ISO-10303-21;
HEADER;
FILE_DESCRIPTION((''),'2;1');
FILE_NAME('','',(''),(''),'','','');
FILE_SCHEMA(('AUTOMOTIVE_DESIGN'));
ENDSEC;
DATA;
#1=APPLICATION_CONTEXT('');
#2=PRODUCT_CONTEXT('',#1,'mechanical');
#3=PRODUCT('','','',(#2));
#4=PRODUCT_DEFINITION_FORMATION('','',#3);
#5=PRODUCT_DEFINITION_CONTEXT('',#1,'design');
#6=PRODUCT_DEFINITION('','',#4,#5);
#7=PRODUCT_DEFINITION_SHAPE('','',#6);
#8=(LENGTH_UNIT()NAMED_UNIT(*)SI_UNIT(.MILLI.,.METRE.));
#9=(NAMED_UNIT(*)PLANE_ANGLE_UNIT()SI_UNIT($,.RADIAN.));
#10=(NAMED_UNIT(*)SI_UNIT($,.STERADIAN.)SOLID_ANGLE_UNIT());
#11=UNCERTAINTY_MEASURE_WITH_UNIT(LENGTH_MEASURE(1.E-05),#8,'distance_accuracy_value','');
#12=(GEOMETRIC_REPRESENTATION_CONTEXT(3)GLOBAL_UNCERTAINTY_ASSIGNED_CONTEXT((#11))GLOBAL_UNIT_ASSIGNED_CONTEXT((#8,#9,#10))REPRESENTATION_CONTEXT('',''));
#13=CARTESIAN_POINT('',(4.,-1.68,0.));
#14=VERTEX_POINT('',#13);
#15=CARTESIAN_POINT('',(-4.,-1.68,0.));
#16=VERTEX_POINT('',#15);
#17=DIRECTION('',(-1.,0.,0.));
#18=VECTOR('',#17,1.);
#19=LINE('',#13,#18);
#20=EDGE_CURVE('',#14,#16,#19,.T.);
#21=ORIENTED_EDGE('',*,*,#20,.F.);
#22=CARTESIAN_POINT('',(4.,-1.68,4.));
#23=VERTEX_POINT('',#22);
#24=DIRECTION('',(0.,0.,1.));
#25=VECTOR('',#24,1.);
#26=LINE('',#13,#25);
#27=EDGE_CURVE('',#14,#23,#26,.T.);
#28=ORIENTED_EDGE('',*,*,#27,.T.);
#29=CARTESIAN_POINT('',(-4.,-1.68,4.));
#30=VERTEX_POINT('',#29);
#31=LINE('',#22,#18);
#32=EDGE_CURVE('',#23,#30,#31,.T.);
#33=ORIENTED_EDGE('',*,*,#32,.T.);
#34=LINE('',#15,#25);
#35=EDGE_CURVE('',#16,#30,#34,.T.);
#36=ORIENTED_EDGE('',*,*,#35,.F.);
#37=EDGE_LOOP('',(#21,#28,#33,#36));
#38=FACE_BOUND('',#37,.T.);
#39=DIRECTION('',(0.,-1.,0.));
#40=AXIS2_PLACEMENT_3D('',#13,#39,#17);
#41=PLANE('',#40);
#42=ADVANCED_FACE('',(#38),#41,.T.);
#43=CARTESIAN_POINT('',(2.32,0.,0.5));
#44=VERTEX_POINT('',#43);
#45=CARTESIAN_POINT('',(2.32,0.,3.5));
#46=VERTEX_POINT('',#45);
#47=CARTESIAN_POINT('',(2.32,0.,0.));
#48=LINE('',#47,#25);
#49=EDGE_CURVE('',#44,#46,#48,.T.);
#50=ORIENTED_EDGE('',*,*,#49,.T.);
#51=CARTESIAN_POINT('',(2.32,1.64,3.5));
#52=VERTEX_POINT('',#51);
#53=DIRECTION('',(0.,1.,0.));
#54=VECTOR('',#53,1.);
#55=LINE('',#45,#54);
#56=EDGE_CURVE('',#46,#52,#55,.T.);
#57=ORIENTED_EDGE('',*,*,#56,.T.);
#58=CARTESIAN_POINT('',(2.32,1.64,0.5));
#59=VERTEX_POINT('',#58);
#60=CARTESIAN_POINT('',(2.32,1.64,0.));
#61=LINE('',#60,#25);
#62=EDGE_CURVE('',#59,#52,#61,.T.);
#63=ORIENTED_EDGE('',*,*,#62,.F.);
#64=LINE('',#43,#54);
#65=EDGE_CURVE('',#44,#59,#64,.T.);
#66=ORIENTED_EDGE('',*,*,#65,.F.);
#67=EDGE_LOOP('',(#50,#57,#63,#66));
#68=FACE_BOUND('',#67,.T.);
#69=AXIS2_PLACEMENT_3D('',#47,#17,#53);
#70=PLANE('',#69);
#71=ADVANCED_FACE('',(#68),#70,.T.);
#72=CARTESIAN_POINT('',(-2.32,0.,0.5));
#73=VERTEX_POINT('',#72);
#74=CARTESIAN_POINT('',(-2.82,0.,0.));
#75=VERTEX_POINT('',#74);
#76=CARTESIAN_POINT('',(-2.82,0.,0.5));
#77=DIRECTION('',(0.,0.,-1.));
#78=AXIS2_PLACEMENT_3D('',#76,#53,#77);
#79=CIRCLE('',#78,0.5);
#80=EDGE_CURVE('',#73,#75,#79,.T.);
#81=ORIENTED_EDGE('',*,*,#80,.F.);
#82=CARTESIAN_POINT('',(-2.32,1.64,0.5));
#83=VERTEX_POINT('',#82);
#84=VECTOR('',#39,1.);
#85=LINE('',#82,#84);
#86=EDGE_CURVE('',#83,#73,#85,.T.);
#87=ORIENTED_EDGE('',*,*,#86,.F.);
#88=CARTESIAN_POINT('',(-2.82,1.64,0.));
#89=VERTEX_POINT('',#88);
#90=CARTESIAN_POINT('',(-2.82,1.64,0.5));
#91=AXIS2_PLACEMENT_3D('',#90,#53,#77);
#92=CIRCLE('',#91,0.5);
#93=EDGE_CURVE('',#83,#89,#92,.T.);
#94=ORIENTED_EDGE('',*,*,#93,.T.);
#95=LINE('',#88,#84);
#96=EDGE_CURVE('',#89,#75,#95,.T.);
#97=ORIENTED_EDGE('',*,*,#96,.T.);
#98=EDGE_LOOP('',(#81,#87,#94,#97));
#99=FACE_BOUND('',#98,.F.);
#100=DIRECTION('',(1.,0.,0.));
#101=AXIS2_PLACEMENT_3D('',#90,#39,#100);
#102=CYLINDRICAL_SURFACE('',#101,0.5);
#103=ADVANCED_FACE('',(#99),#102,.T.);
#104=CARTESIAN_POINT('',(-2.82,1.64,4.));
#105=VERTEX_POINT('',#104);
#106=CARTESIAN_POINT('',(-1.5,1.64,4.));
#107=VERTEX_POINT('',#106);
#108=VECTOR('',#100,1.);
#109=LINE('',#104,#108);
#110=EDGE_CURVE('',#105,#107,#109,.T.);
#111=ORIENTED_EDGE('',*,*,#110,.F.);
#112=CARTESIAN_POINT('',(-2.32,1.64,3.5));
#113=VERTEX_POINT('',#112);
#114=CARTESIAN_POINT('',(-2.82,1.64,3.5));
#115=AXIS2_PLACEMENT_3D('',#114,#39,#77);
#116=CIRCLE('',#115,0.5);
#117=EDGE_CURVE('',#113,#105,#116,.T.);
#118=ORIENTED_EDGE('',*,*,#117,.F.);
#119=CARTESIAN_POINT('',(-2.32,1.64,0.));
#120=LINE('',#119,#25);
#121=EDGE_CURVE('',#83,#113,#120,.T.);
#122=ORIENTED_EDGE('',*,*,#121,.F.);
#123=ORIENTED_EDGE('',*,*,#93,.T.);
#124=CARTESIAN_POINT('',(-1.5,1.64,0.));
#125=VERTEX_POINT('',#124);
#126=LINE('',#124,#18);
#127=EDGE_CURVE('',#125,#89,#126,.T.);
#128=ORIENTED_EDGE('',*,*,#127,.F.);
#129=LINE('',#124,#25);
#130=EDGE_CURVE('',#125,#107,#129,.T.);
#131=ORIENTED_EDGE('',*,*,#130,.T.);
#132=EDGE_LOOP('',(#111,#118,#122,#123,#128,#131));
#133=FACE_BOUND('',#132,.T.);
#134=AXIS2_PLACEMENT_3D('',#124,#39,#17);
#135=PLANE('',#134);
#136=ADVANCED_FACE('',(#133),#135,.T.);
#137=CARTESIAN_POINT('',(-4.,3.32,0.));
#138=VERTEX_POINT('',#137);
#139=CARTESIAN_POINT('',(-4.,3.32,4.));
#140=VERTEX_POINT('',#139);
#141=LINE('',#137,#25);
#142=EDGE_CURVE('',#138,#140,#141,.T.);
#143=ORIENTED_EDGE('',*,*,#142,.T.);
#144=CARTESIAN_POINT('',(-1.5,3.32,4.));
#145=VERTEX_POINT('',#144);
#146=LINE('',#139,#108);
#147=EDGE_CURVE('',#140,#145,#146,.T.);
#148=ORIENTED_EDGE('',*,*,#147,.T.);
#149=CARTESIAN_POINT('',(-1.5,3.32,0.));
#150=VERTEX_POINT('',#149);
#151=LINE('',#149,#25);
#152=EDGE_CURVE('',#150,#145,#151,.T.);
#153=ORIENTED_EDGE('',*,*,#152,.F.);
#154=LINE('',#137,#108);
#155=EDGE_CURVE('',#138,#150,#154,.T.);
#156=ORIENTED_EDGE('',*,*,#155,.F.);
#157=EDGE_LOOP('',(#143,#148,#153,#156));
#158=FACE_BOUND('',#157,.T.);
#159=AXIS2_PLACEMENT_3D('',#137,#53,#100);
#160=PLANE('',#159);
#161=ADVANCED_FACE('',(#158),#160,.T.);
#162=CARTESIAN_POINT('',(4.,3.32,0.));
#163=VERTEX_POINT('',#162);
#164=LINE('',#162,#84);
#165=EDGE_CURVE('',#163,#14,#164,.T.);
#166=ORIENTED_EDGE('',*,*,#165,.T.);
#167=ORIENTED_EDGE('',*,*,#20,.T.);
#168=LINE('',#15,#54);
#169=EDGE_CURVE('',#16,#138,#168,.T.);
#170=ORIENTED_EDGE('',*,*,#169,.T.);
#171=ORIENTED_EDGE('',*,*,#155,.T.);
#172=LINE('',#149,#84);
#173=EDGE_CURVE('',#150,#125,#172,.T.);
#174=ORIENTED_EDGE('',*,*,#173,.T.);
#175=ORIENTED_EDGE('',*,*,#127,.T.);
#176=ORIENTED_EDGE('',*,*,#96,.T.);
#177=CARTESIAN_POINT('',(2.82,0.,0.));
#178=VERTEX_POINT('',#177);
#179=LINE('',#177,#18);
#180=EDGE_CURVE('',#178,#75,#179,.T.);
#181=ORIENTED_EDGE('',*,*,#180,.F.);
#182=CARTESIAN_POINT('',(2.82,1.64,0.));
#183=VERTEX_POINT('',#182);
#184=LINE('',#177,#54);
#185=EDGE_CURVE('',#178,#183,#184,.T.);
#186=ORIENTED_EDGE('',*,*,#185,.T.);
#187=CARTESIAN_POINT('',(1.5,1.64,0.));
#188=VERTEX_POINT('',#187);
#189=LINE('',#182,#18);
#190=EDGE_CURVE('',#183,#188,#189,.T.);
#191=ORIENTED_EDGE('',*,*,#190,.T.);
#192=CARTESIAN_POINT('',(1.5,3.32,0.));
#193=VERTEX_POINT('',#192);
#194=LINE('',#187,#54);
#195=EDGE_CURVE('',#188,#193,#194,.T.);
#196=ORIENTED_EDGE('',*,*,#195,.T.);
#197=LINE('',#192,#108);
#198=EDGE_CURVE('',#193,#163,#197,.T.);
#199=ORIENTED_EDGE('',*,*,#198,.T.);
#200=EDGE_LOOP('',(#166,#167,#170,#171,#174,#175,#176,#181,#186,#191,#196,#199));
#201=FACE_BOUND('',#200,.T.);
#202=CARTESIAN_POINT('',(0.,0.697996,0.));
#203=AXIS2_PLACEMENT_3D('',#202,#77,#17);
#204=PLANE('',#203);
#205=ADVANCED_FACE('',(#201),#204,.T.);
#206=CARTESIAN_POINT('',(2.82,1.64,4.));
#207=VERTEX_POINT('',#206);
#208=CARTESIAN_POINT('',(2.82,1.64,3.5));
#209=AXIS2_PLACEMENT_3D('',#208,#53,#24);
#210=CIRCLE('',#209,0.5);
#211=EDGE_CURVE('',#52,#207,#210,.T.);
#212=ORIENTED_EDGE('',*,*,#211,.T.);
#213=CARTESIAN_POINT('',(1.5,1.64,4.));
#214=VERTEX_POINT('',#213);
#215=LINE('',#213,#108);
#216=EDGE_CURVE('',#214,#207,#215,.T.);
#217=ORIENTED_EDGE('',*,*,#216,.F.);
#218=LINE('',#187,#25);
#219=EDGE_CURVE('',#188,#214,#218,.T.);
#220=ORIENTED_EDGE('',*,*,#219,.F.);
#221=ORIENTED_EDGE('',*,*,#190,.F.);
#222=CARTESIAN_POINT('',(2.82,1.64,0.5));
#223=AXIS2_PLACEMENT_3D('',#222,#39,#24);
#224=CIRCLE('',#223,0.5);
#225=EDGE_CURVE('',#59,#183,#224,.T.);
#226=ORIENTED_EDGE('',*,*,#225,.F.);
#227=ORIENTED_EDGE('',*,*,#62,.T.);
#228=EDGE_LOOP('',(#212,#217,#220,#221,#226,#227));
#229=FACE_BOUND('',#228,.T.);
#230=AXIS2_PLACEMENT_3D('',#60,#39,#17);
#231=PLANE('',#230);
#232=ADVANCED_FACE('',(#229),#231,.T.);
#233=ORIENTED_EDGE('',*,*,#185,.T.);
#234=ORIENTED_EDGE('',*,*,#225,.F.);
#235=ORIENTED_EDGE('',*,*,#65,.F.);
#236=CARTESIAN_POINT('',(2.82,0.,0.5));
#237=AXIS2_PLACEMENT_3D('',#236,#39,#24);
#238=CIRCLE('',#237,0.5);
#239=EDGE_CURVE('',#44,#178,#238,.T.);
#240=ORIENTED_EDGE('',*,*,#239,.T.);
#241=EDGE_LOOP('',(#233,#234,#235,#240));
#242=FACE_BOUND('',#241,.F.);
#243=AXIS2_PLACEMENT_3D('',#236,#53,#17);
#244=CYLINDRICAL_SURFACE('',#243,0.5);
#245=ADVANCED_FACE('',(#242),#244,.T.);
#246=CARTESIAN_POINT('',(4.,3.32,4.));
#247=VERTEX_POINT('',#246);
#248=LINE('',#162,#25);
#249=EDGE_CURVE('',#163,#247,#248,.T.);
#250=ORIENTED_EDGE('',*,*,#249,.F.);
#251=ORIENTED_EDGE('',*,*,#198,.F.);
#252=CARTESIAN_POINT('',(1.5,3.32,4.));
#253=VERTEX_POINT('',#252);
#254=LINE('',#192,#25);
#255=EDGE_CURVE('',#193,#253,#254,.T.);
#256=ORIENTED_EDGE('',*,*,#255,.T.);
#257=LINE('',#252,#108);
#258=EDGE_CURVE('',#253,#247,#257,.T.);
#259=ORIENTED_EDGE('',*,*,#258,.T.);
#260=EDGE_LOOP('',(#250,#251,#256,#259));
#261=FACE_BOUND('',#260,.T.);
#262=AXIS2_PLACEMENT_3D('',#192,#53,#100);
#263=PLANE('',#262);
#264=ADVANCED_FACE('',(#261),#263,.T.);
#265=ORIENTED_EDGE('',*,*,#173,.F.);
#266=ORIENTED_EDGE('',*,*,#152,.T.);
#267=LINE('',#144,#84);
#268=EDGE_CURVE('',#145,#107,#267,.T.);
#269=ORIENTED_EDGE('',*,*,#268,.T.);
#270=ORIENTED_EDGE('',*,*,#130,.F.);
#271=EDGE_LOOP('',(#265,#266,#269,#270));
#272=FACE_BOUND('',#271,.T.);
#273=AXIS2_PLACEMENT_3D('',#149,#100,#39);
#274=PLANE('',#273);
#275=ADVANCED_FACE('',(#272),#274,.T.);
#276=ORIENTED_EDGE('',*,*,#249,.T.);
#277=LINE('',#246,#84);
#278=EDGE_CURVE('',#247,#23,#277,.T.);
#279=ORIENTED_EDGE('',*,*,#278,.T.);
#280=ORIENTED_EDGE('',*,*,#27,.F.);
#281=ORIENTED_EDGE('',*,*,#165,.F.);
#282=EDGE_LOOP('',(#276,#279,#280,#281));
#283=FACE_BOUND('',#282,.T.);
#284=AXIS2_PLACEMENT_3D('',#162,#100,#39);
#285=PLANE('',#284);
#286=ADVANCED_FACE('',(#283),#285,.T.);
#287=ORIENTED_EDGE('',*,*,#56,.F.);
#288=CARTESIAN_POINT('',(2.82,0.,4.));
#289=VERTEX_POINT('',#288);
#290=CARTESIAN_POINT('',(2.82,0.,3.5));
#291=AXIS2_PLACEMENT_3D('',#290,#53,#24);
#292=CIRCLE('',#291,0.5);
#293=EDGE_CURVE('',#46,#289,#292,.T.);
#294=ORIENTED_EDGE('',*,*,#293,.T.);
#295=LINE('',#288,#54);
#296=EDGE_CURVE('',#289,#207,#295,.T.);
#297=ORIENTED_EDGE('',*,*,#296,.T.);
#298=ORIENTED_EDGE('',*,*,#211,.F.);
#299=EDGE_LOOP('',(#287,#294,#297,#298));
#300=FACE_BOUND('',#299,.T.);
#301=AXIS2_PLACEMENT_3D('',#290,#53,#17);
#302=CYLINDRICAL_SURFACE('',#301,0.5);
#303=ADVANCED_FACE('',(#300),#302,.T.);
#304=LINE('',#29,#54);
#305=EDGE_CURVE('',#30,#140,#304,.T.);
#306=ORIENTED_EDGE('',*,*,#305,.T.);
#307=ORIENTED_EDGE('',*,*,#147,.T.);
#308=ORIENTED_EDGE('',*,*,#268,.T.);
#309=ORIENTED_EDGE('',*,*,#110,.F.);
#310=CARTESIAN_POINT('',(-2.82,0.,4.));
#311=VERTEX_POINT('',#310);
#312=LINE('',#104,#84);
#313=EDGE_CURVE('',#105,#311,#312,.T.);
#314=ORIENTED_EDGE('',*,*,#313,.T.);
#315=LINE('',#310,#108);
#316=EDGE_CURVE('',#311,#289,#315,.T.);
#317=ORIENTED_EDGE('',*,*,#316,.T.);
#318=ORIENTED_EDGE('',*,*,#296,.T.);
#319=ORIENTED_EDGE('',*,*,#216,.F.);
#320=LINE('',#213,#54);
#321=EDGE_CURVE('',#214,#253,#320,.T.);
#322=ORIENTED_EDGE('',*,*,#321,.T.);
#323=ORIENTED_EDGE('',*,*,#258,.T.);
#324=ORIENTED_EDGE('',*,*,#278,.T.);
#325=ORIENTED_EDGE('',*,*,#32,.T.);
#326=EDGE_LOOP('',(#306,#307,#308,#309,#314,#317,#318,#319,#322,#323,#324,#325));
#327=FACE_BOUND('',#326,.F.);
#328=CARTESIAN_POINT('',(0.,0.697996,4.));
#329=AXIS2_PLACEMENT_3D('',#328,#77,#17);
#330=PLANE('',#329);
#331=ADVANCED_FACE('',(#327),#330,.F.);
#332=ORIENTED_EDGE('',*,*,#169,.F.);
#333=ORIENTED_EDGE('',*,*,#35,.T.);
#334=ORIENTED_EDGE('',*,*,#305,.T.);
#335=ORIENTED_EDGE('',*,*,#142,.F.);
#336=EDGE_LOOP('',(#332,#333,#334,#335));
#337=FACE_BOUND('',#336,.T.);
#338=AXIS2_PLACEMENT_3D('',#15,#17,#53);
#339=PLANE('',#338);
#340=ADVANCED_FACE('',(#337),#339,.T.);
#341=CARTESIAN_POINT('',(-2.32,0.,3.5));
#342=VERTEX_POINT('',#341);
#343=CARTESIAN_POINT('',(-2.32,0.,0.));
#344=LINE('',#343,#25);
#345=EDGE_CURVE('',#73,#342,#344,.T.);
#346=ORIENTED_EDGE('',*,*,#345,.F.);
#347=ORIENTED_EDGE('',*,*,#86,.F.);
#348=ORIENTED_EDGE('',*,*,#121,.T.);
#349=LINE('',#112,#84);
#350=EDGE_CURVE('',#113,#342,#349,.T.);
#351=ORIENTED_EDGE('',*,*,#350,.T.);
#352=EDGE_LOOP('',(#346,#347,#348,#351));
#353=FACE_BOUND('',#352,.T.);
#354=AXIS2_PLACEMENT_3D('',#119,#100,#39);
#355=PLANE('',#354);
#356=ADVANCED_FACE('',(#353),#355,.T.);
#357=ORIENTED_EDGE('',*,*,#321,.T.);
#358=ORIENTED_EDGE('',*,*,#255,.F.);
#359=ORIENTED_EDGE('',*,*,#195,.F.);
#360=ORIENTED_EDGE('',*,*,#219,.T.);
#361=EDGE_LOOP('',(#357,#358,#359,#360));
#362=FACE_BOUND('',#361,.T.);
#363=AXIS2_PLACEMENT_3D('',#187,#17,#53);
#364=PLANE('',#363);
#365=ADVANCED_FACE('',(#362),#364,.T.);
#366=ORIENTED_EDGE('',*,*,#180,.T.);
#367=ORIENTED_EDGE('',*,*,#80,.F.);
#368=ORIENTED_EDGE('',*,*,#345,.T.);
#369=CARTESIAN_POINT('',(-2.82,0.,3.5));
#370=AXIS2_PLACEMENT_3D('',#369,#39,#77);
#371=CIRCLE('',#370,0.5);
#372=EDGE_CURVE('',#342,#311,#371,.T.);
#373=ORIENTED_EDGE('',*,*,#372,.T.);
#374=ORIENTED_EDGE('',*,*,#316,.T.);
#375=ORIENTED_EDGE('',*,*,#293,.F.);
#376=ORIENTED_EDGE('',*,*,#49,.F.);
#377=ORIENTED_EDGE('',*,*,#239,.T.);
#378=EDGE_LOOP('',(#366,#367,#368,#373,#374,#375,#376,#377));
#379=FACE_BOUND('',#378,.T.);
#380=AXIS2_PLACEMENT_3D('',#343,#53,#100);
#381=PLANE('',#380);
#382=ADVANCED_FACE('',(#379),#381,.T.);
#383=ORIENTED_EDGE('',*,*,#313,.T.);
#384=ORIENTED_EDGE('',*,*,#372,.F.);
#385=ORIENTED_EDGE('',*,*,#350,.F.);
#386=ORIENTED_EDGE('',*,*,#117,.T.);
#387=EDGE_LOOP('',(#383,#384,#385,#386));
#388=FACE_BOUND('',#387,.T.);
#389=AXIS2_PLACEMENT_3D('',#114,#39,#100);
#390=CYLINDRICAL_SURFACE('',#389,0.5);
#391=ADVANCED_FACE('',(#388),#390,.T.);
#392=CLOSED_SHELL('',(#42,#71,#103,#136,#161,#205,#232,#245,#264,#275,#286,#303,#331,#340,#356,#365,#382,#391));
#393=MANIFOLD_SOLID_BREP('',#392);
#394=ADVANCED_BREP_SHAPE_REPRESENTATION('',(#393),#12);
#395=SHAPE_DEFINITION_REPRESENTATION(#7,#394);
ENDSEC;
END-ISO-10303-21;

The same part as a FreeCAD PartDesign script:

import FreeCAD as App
import Part
import Sketcher
from FreeCAD import Vector


def edges_at(feature, points):
    """Names of the edges that pass closest to the given points."""
    edges = feature.Shape.Edges
    near = lambda p: min(range(len(edges)), key=lambda i: edges[i].distToShape(Part.Vertex(*p))[0])
    return sorted({f"Edge{near(p) + 1}" for p in points})


def add_polygon(sketch, points):
    """Adds a closed chain of lines whose ends are joined by coincident constraints."""
    first, n = sketch.GeometryCount, len(points)
    for a, b in zip(points, points[1:] + points[:1]):
        sketch.addGeometry(Part.LineSegment(App.Vector(*a, 0), App.Vector(*b, 0)), False)
    for i in range(n):
        sketch.addConstraint(Sketcher.Constraint("Coincident", first + i, 2, first + (i + 1) % n, 1))

doc = App.newDocument("Part")
body = doc.addObject("PartDesign::Body", "Body")

sketch1 = body.newObject("Sketcher::SketchObject", "Sketch")
sketch1.AttachmentSupport = (doc.getObject("XY_Plane"), [""])
sketch1.MapMode = "FlatFace"
add_polygon(sketch1, [(2.3, 0), (-2.3, 0), (-2.3, 1.6), (-1.5, 1.6), (-1.5, 3.3), (-4, 3.3), (-4, -1.7), (4, -1.7), (4, 3.3), (1.5, 3.3), (1.5, 1.6), (2.3, 1.6)])
sketch1.addConstraint(Sketcher.Constraint("Horizontal", 0))
sketch1.addConstraint(Sketcher.Constraint("Vertical", 1))
sketch1.addConstraint(Sketcher.Constraint("Horizontal", 2))
sketch1.addConstraint(Sketcher.Constraint("Vertical", 3))
sketch1.addConstraint(Sketcher.Constraint("Horizontal", 4))
sketch1.addConstraint(Sketcher.Constraint("Vertical", 5))
sketch1.addConstraint(Sketcher.Constraint("Horizontal", 6))
sketch1.addConstraint(Sketcher.Constraint("Vertical", 7))
sketch1.addConstraint(Sketcher.Constraint("Horizontal", 8))
sketch1.addConstraint(Sketcher.Constraint("Vertical", 9))
sketch1.addConstraint(Sketcher.Constraint("Horizontal", 10))
sketch1.addConstraint(Sketcher.Constraint("Vertical", 11))
sketch1.addConstraint(Sketcher.Constraint("Symmetric", 0, 2, 11, 2, -1, 1))
sketch1.addConstraint(Sketcher.Constraint("Symmetric", 4, 2, 7, 2, -2))
sketch1.addConstraint(Sketcher.Constraint("Symmetric", 2, 2, 9, 2, -2))
sketch1.addConstraint(Sketcher.Constraint("DistanceX", 6, 1, 6, 2, 8.0))
sketch1.addConstraint(Sketcher.Constraint("DistanceY", 5, 2, 5, 1, 5.0))
sketch1.addConstraint(Sketcher.Constraint("DistanceX", 4, 2, 4, 1, 2.5))
sketch1.addConstraint(Sketcher.Constraint("DistanceX", 0, 2, 0, 1, 4.64))
sketch1.addConstraint(Sketcher.Constraint("DistanceY", 1, 1, 1, 2, 1.64))
sketch1.addConstraint(Sketcher.Constraint("DistanceY", 3, 1, 3, 2, 1.68))
pad1 = body.newObject("PartDesign::Pad", "Pad")
pad1.Profile = sketch1
pad1.Length = 4
doc.recompute()

fillet = body.newObject("PartDesign::Fillet", "Fillet")
fillet.Base = (pad1, edges_at(pad1, [
    (2.32, 0.82, 4),
    (-2.32, 0.82, 4),
    (2.32, 0.82, 0),
    (-2.32, 0.82, 0),
]))
fillet.Radius = 0.5

doc.recompute()
